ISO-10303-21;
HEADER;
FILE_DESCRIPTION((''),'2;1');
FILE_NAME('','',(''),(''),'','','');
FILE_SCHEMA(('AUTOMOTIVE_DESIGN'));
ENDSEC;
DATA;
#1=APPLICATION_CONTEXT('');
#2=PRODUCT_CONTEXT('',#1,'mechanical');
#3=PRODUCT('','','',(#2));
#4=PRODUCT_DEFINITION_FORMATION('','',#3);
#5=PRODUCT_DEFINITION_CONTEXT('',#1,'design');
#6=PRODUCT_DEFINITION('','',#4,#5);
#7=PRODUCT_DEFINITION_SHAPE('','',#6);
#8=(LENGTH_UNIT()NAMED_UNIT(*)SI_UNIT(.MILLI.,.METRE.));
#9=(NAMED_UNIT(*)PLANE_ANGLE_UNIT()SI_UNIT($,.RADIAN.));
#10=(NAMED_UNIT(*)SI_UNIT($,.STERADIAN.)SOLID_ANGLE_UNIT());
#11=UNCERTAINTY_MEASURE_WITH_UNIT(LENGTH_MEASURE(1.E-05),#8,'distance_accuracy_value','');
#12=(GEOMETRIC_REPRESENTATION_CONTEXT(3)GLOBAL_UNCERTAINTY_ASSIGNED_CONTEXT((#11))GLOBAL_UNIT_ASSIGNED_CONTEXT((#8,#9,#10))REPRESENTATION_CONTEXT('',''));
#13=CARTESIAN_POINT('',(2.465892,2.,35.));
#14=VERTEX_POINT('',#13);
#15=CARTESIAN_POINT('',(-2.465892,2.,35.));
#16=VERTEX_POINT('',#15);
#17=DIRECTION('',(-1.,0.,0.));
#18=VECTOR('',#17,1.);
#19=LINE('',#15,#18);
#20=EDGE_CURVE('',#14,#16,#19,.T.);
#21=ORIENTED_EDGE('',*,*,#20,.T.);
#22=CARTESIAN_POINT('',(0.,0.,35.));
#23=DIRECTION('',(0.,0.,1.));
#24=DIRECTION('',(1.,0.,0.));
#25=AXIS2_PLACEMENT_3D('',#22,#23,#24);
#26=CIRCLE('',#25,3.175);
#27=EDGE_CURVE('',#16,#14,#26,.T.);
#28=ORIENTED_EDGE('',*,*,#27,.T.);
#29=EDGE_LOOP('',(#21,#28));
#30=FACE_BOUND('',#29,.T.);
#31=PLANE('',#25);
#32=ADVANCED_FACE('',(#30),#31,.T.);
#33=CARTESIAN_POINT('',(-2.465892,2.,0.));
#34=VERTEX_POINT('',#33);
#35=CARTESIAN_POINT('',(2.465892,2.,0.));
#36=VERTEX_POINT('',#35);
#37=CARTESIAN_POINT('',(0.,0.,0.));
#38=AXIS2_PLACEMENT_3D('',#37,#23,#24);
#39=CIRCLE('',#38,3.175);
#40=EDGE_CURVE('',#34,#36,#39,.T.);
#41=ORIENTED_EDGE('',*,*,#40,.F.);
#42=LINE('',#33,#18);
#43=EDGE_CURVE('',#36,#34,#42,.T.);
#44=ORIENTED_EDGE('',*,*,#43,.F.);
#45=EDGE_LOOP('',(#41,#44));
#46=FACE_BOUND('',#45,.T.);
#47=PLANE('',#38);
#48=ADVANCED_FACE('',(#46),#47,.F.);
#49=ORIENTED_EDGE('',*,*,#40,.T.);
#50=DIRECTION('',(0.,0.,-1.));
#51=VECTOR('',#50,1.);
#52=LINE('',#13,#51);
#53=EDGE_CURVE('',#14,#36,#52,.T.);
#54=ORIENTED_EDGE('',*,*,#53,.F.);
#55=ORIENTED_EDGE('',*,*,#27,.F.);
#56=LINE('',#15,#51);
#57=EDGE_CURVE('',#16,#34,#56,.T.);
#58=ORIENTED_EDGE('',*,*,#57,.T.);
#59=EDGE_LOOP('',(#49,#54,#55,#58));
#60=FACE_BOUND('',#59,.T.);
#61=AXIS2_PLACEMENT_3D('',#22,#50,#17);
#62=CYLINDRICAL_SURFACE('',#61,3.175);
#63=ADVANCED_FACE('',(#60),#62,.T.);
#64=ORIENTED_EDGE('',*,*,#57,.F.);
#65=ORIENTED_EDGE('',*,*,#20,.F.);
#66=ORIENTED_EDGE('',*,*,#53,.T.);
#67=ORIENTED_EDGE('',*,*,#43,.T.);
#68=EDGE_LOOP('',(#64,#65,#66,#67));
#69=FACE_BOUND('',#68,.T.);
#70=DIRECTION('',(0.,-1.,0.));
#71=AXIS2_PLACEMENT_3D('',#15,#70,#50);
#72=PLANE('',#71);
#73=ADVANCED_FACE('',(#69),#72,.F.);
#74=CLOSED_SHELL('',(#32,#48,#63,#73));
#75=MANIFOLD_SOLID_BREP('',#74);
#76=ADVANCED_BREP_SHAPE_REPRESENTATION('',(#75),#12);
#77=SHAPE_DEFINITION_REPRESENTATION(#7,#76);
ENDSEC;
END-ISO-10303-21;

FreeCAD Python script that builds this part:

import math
import FreeCAD as App
import Part
import Sketcher

V = App.Vector
Q = App.Units.Quantity

doc = App.newDocument("Part")
body = doc.addObject("PartDesign::Body", "Body")

# Sketch on XY plane
sketch1 = doc.addObject("Sketcher::SketchObject", "Sketch")
body.addObject(sketch1)
sketch1.AttachmentSupport = (doc.XY_Plane, [""])
sketch1.MapMode = "FlatFace"
sketch1.addGeometry([
    Part.LineSegment(V(2.5, 2, 0), V(-2.5, 2, 0)),
    Part.ArcOfCircle(Part.Circle(V(0, 0, 0), V(0, 0, 1), 3.2), math.radians(141), math.radians(399)),
], False)
sketch1.addConstraint([
    Sketcher.Constraint("Coincident", 0, 1, 1, 2),
    Sketcher.Constraint("Coincident", 1, 1, 0, 2),
    Sketcher.Constraint("Horizontal", 0),
    Sketcher.Constraint("Coincident", 1, 3, -1, 1),
    Sketcher.Constraint("DistanceY", -1, 1, 0, 1, Q("2 mm")),
    Sketcher.Constraint("Radius", 1, Q("3.175 mm")),
])
pad1 = doc.addObject("PartDesign::Pad", "Pad")
body.addObject(pad1)
pad1.Profile = sketch1
pad1.Length = 35

doc.recompute()
